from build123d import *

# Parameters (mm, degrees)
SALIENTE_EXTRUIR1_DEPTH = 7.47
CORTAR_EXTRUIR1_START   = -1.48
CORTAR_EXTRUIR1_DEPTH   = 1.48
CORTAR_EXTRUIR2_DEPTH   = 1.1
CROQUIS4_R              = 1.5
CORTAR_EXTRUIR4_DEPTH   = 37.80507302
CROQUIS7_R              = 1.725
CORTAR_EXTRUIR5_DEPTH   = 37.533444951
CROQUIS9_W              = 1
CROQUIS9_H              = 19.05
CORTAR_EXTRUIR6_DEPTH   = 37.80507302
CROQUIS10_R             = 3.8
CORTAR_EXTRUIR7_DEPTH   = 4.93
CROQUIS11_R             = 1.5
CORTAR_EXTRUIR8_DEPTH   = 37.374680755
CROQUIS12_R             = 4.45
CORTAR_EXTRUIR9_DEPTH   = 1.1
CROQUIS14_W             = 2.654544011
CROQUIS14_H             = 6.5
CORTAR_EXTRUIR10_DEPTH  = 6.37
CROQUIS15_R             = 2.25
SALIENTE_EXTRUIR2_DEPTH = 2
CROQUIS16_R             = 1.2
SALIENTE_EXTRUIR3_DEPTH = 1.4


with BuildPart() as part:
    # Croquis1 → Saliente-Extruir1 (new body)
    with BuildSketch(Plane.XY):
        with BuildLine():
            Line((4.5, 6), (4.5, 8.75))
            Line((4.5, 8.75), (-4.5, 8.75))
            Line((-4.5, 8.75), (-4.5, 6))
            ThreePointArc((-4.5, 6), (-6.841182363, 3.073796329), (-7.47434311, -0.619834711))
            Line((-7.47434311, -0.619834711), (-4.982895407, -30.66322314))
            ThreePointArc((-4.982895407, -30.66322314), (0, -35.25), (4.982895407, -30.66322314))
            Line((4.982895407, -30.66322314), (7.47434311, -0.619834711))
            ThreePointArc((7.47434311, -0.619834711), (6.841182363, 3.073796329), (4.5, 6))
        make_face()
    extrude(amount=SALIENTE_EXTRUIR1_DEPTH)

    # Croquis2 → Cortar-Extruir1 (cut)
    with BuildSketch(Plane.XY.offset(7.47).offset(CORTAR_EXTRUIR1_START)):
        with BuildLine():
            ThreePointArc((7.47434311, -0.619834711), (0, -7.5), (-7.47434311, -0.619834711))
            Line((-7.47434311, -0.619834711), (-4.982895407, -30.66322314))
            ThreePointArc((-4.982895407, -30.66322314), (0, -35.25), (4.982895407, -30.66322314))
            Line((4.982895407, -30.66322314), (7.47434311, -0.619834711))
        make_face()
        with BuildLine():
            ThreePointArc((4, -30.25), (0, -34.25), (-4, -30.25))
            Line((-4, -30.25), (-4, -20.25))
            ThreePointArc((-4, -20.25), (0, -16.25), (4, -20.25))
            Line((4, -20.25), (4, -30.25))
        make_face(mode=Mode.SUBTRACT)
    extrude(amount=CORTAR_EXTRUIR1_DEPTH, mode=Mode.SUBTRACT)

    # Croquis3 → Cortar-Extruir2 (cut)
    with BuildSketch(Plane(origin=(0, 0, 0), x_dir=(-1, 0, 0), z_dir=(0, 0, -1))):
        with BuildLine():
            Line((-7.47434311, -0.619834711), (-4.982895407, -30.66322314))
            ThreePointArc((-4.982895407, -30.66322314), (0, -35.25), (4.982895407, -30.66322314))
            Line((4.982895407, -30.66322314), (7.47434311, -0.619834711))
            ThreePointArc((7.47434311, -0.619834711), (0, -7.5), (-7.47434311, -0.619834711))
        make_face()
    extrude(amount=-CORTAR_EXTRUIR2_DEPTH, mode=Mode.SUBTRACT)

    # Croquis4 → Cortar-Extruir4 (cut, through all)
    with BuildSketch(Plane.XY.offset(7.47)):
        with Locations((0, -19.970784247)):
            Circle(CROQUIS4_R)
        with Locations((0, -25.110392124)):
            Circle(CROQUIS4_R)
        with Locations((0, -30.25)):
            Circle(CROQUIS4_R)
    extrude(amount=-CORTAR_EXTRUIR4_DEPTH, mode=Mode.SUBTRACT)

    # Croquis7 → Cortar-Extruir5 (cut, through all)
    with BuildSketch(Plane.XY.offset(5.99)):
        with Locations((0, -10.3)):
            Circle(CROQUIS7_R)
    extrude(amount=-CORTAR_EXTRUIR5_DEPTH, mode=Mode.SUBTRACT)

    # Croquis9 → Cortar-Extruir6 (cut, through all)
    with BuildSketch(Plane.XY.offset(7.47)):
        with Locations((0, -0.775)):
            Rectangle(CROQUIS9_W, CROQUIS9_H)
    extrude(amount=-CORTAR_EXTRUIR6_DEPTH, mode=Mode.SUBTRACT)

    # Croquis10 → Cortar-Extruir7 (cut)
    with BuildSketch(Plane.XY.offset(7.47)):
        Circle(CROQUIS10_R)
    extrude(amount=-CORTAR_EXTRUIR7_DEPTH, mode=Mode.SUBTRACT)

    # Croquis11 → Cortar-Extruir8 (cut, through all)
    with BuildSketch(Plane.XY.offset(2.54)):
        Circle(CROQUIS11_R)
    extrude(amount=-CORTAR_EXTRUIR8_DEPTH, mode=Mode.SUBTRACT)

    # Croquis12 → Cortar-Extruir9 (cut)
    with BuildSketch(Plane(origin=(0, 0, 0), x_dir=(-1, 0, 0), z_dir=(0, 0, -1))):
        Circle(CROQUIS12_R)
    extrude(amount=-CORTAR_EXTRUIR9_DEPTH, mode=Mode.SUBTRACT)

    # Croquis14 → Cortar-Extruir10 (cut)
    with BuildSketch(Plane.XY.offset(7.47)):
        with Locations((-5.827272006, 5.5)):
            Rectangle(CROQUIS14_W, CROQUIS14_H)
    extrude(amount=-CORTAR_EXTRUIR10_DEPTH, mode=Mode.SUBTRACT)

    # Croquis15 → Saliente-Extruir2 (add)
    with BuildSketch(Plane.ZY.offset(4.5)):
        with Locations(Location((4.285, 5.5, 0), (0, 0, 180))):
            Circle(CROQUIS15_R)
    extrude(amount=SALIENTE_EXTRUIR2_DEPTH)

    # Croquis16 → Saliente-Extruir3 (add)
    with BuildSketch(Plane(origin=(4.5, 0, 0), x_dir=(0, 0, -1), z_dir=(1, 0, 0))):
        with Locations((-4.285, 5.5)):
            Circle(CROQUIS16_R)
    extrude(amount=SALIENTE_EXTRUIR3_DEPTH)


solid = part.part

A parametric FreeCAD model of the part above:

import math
import FreeCAD as App
import Part
import Sketcher
from FreeCAD import Vector
Q = App.Units.Quantity

doc = App.newDocument("Part")
body = doc.addObject("PartDesign::Body", "Body")

# Sketch on XY plane
sketch1 = body.newObject("Sketcher::SketchObject", "Sketch")
sketch1.AttachmentSupport = (doc.getObject("XY_Plane"), [""])
sketch1.MapMode = "FlatFace"
sketch1.addGeometry([
    Part.LineSegment(Vector(4.5, 6, 0), Vector(4.5, 8.8, 0)),  # 0
    Part.LineSegment(Vector(4.5, 8.8, 0), Vector(-4.5, 8.8, 0)),  # 1
    Part.LineSegment(Vector(-4.5, 8.8, 0), Vector(-4.5, 6, 0)),  # 2
    Part.ArcOfCircle(Part.Circle(Vector(0, 0, 0), Vector(0, 0, 1), 7.5), math.radians(127), math.radians(185)),  # 3
    Part.LineSegment(Vector(-7.5, -0.6, 0), Vector(-5, -30.7, 0)),  # 4
    Part.ArcOfCircle(Part.Circle(Vector(0, -30.2, 0), Vector(0, 0, 1), 5), math.radians(-175), math.radians(-5)),  # 5
    Part.LineSegment(Vector(5, -30.7, 0), Vector(7.5, -0.6, 0)),  # 6
    Part.ArcOfCircle(Part.Circle(Vector(0, 0, 0), Vector(0, 0, 1), 7.5), math.radians(-5), math.radians(53)),  # 7
], False)
sketch1.addConstraint([
    Sketcher.Constraint("Coincident", 0, 2, 1, 1),
    Sketcher.Constraint("Coincident", 1, 2, 2, 1),
    Sketcher.Constraint("Coincident", 2, 2, 3, 1),
    Sketcher.Constraint("Tangent", 3, 2, 4, 1),
    Sketcher.Constraint("Tangent", 4, 2, 5, 1),
    Sketcher.Constraint("Tangent", 5, 2, 6, 1),
    Sketcher.Constraint("Tangent", 6, 2, 7, 1),
    Sketcher.Constraint("Coincident", 7, 2, 0, 1),
    Sketcher.Constraint("Vertical", 0),
    Sketcher.Constraint("Horizontal", 1),
    Sketcher.Constraint("Vertical", 2),
    Sketcher.Constraint("Coincident", 3, 3, -1, 1),
    Sketcher.Constraint("Coincident", 7, 3, -1, 1),
    Sketcher.Constraint("Equal", 3, 7),
    Sketcher.Constraint("PointOnObject", 5, 3, -2),
    Sketcher.Constraint("Horizontal", 2, 2, 7, 2),
    Sketcher.Constraint("Radius", 5, Q("5 mm")),
    Sketcher.Constraint("Radius", 3, Q("7.5 mm")),
    Sketcher.Constraint("DistanceX", 1, 2, 1, 1, Q("9 mm")),
    Sketcher.Constraint("DistanceY", 5, 3, 0, 2, Q("39 mm")),
    Sketcher.Constraint("DistanceY", 0, 1, 0, 2, Q("2.75 mm")),
])
pad1 = body.newObject("PartDesign::Pad", "Pad")
pad1.Profile = sketch1
pad1.Length = 7.47

# Sketch on XY plane
sketch2 = body.newObject("Sketcher::SketchObject", "Sketch001")
sketch2.AttachmentSupport = (doc.getObject("XY_Plane"), [""])
sketch2.MapMode = "FlatFace"
sketch2.AttachmentOffset = App.Placement(Vector(0, 0, 5.99), App.Rotation())
sketch2.addGeometry([
    Part.ArcOfCircle(Part.Circle(Vector(0, 0, 0), Vector(0, 0, 1), 7.5), math.radians(-175), math.radians(-5)),  # 0
    Part.LineSegment(Vector(-7.5, -0.6, 0), Vector(-5, -30.7, 0)),  # 1
    Part.ArcOfCircle(Part.Circle(Vector(0, -30.2, 0), Vector(0, 0, 1), 5), math.radians(-175), math.radians(-5)),  # 2
    Part.LineSegment(Vector(5, -30.7, 0), Vector(7.5, -0.6, 0)),  # 3
    Part.LineSegment(Vector(4, -20.2, 0), Vector(4, -30.2, 0)),  # 4
    Part.ArcOfCircle(Part.Circle(Vector(0, -30.2, 0), Vector(0, 0, 1), 4), math.radians(180), math.radians(360)),  # 5
    Part.LineSegment(Vector(-4, -30.2, 0), Vector(-4, -20.2, 0)),  # 6
    Part.ArcOfCircle(Part.Circle(Vector(0, -20.2, 0), Vector(0, 0, 1), 4), math.radians(0), math.radians(180)),  # 7
], False)
sketch2.addConstraint([
    Sketcher.Constraint("Tangent", 0, 1, 1, 1),
    Sketcher.Constraint("Tangent", 1, 2, 2, 1),
    Sketcher.Constraint("Tangent", 2, 2, 3, 1),
    Sketcher.Constraint("Tangent", 3, 2, 0, 2),
    Sketcher.Constraint("Tangent", 4, 2, 5, 2),
    Sketcher.Constraint("Tangent", 5, 1, 6, 1),
    Sketcher.Constraint("Tangent", 6, 2, 7, 2),
    Sketcher.Constraint("Tangent", 7, 1, 4, 1),
    Sketcher.Constraint("Vertical", 4),
    Sketcher.Constraint("Vertical", 6),
    Sketcher.Constraint("Coincident", 0, 3, -1, 1),
    Sketcher.Constraint("Coincident", 5, 3, 2, 3),
    Sketcher.Constraint("PointOnObject", 2, 3, -2),
    Sketcher.Constraint("Radius", 2, Q("5 mm")),
    Sketcher.Constraint("Radius", 5, Q("4 mm")),
    Sketcher.Constraint("Radius", 0, Q("7.5 mm")),
    Sketcher.Constraint("DistanceY", 4, 2, 4, 1, Q("10 mm")),
    Sketcher.Constraint("DistanceY", 2, 3, -1, 1, Q("30.25 mm")),
])
pocket1 = body.newObject("PartDesign::Pocket", "Pocket")
pocket1.Profile = sketch2
pocket1.Length = 1.48
pocket1.Reversed = True

# Sketch on XY plane
sketch3 = body.newObject("Sketcher::SketchObject", "Sketch002")
sketch3.AttachmentSupport = (doc.getObject("XY_Plane"), [""])
sketch3.MapMode = "FlatFace"
sketch3.addGeometry([
    Part.LineSegment(Vector(7, -1, 0), Vector(5, -31, 0)),
    Part.ArcOfCircle(Part.Circle(Vector(0, -30, 0), Vector(0, 0, 1), 5), math.radians(-175), math.radians(-5)),
    Part.LineSegment(Vector(-5, -31, 0), Vector(-7, -1, 0)),
    Part.ArcOfCircle(Part.Circle(Vector(0, 0, 0), Vector(0, 0, 1), 8), math.radians(-175), math.radians(-5)),
], False)
sketch3.addConstraint([
    Sketcher.Constraint("Tangent", 0, 2, 1, 2),
    Sketcher.Constraint("Tangent", 1, 1, 2, 1),
    Sketcher.Constraint("Tangent", 2, 2, 3, 1),
    Sketcher.Constraint("Tangent", 3, 2, 0, 1),
    Sketcher.Constraint("Coincident", 3, 3, -1, 1),
    Sketcher.Constraint("PointOnObject", 1, 3, -2),
    Sketcher.Constraint("Radius", 1, Q("5 mm")),
    Sketcher.Constraint("Radius", 3, Q("7.5 mm")),
    Sketcher.Constraint("DistanceY", 1, 3, -1, 1, Q("30.25 mm")),
])
pocket2 = body.newObject("PartDesign::Pocket", "Pocket001")
pocket2.Profile = sketch3
pocket2.Length = 1.1
pocket2.Reversed = True

# Sketch on XY plane
sketch4 = body.newObject("Sketcher::SketchObject", "Sketch003")
sketch4.AttachmentSupport = (doc.getObject("XY_Plane"), [""])
sketch4.MapMode = "FlatFace"
sketch4.AttachmentOffset = App.Placement(Vector(0, 0, 7.47), App.Rotation())
sketch4.addGeometry([
    Part.Circle(Vector(0, -20, 0), Vector(0, 0, 1), 1.5),
    Part.Circle(Vector(0, -25.1, 0), Vector(0, 0, 1), 1.5),
    Part.Circle(Vector(0, -30.2, 0), Vector(0, 0, 1), 1.5),
], False)
sketch4.addConstraint([
    Sketcher.Constraint("Equal", 0, 1),
    Sketcher.Constraint("Equal", 1, 2),
    Sketcher.Constraint("PointOnObject", 0, 3, -2),
    Sketcher.Constraint("PointOnObject", 1, 3, -2),
    Sketcher.Constraint("PointOnObject", 2, 3, -2),
    Sketcher.Constraint("Diameter", 0, Q("3 mm")),
    Sketcher.Constraint("DistanceY", 2, 3, -1, 1, Q("30.25 mm")),
    Sketcher.Constraint("DistanceY", 0, 3, -1, 1, Q("19.970784 mm")),
    Sketcher.Constraint("DistanceY", 1, 3, -1, 1, Q("25.110392 mm")),
])
pocket3 = body.newObject("PartDesign::Pocket", "Pocket002")
pocket3.Profile = sketch4
pocket3.Type = "ThroughAll"

# Sketch on XY plane
sketch5 = body.newObject("Sketcher::SketchObject", "Sketch004")
sketch5.AttachmentSupport = (doc.getObject("XY_Plane"), [""])
sketch5.MapMode = "FlatFace"
sketch5.AttachmentOffset = App.Placement(Vector(0, 0, 5.99), App.Rotation())
sketch5.addGeometry(Part.Circle(Vector(0, -10.3, 0), Vector(0, 0, 1), 1.7), False)
sketch5.addConstraint([
    Sketcher.Constraint("PointOnObject", 0, 3, -2),
    Sketcher.Constraint("Diameter", 0, Q("3.45 mm")),
    Sketcher.Constraint("DistanceY", 0, 3, -1, 1, Q("10.3 mm")),
])
pocket4 = body.newObject("PartDesign::Pocket", "Pocket003")
pocket4.Profile = sketch5
pocket4.Type = "ThroughAll"

# Sketch on XY plane
sketch6 = body.newObject("Sketcher::SketchObject", "Sketch005")
sketch6.AttachmentSupport = (doc.getObject("XY_Plane"), [""])
sketch6.MapMode = "FlatFace"
sketch6.AttachmentOffset = App.Placement(Vector(0, 0, 7.47), App.Rotation())
sketch6.addGeometry([
    Part.LineSegment(Vector(-0.5, 8.8, 0), Vector(-0.5, -10.3, 0)),
    Part.LineSegment(Vector(-0.5, -10.3, 0), Vector(0.5, -10.3, 0)),
    Part.LineSegment(Vector(0.5, -10.3, 0), Vector(0.5, 8.8, 0)),
    Part.LineSegment(Vector(0.5, 8.8, 0), Vector(-0.5, 8.8, 0)),
], False)
sketch6.addConstraint([
    Sketcher.Constraint("Coincident", 0, 2, 1, 1),
    Sketcher.Constraint("Coincident", 1, 2, 2, 1),
    Sketcher.Constraint("Coincident", 2, 2, 3, 1),
    Sketcher.Constraint("Coincident", 3, 2, 0, 1),
    Sketcher.Constraint("Vertical", 0),
    Sketcher.Constraint("Horizontal", 1),
    Sketcher.Constraint("Vertical", 2),
    Sketcher.Constraint("Horizontal", 3),
    Sketcher.Constraint("DistanceX", 1, 1, 1, 2, Q("1 mm")),
    Sketcher.Constraint("DistanceY", 0, 2, 0, 1, Q("19.05 mm")),
    Sketcher.Constraint("DistanceX", 0, 2, -1, 1, Q("0.5 mm")),
    Sketcher.Constraint("DistanceY", 0, 2, -1, 1, Q("10.3 mm")),
])
pocket5 = body.newObject("PartDesign::Pocket", "Pocket004")
pocket5.Profile = sketch6
pocket5.Type = "ThroughAll"

# Sketch on XY plane
sketch7 = body.newObject("Sketcher::SketchObject", "Sketch006")
sketch7.AttachmentSupport = (doc.getObject("XY_Plane"), [""])
sketch7.MapMode = "FlatFace"
sketch7.AttachmentOffset = App.Placement(Vector(0, 0, 7.47), App.Rotation())
sketch7.addGeometry(Part.Circle(Vector(0, 0, 0), Vector(0, 0, 1), 3.8), False)
sketch7.addConstraint([
    Sketcher.Constraint("Coincident", 0, 3, -1, 1),
    Sketcher.Constraint("Diameter", 0, Q("7.6 mm")),
])
pocket6 = body.newObject("PartDesign::Pocket", "Pocket005")
pocket6.Profile = sketch7
pocket6.Length = 4.93

# Sketch on XY plane
sketch8 = body.newObject("Sketcher::SketchObject", "Sketch007")
sketch8.AttachmentSupport = (doc.getObject("XY_Plane"), [""])
sketch8.MapMode = "FlatFace"
sketch8.AttachmentOffset = App.Placement(Vector(0, 0, 2.54), App.Rotation())
sketch8.addGeometry(Part.Circle(Vector(0, 0, 0), Vector(0, 0, 1), 1.5), False)
sketch8.addConstraint([
    Sketcher.Constraint("Coincident", 0, 3, -1, 1),
    Sketcher.Constraint("Diameter", 0, Q("3 mm")),
])
pocket7 = body.newObject("PartDesign::Pocket", "Pocket006")
pocket7.Profile = sketch8
pocket7.Type = "ThroughAll"

# Sketch on XY plane
sketch9 = body.newObject("Sketcher::SketchObject", "Sketch008")
sketch9.AttachmentSupport = (doc.getObject("XY_Plane"), [""])
sketch9.MapMode = "FlatFace"
sketch9.addGeometry(Part.Circle(Vector(0, 0, 0), Vector(0, 0, 1), 4.5), False)
sketch9.addConstraint([
    Sketcher.Constraint("Coincident", 0, 3, -1, 1),
    Sketcher.Constraint("Diameter", 0, Q("8.9 mm")),
])
pocket8 = body.newObject("PartDesign::Pocket", "Pocket007")
pocket8.Profile = sketch9
pocket8.Length = 1.1
pocket8.Reversed = True

# Sketch on XY plane
sketch10 = body.newObject("Sketcher::SketchObject", "Sketch009")
sketch10.AttachmentSupport = (doc.getObject("XY_Plane"), [""])
sketch10.MapMode = "FlatFace"
sketch10.AttachmentOffset = App.Placement(Vector(0, 0, 7.47), App.Rotation())
sketch10.addGeometry([
    Part.LineSegment(Vector(-7.2, 8.8, 0), Vector(-7.2, 2.2, 0)),
    Part.LineSegment(Vector(-7.2, 2.2, 0), Vector(-4.5, 2.2, 0)),
    Part.LineSegment(Vector(-4.5, 2.2, 0), Vector(-4.5, 8.8, 0)),
    Part.LineSegment(Vector(-4.5, 8.8, 0), Vector(-7.2, 8.8, 0)),
], False)
sketch10.addConstraint([
    Sketcher.Constraint("Coincident", 0, 2, 1, 1),
    Sketcher.Constraint("Coincident", 1, 2, 2, 1),
    Sketcher.Constraint("Coincident", 2, 2, 3, 1),
    Sketcher.Constraint("Coincident", 3, 2, 0, 1),
    Sketcher.Constraint("Vertical", 0),
    Sketcher.Constraint("Horizontal", 1),
    Sketcher.Constraint("Vertical", 2),
    Sketcher.Constraint("Horizontal", 3),
    Sketcher.Constraint("DistanceY", 0, 2, 0, 1, Q("6.5 mm")),
    Sketcher.Constraint("DistanceX", 1, 2, -1, 1, Q("4.5 mm")),
    Sketcher.Constraint("DistanceY", -1, 1, 0, 2, Q("2.25 mm")),
    Sketcher.Constraint("DistanceX", 1, 1, 1, 2, Q("2.654544 mm")),
])
pocket9 = body.newObject("PartDesign::Pocket", "Pocket008")
pocket9.Profile = sketch10
pocket9.Length = 6.37

# Sketch on YZ plane
sketch11 = body.newObject("Sketcher::SketchObject", "Sketch010")
sketch11.AttachmentSupport = (doc.getObject("YZ_Plane"), [""])
sketch11.MapMode = "FlatFace"
sketch11.AttachmentOffset = App.Placement(Vector(0, 0, -4.5), App.Rotation())
sketch11.addGeometry(Part.Circle(Vector(5.5, 4.3, 0), Vector(0, 0, 1), 2.2), False)
sketch11.addConstraint([
    Sketcher.Constraint("Diameter", 0, Q("4.5 mm")),
    Sketcher.Constraint("DistanceX", -1, 1, 0, 3, Q("5.5 mm")),
    Sketcher.Constraint("DistanceY", -1, 1, 0, 3, Q("4.285 mm")),
])
pad2 = body.newObject("PartDesign::Pad", "Pad001")
pad2.Profile = sketch11
pad2.Length = 2
pad2.Reversed = True

# Sketch on YZ plane
sketch12 = body.newObject("Sketcher::SketchObject", "Sketch011")
sketch12.AttachmentSupport = (doc.getObject("YZ_Plane"), [""])
sketch12.MapMode = "FlatFace"
sketch12.AttachmentOffset = App.Placement(Vector(0, 0, 4.5), App.Rotation())
sketch12.addGeometry(Part.Circle(Vector(5.5, 4.3, 0), Vector(0, 0, 1), 1.2), False)
sketch12.addConstraint([
    Sketcher.Constraint("Diameter", 0, Q("2.4 mm")),
    Sketcher.Constraint("DistanceX", -1, 1, 0, 3, Q("5.5 mm")),
    Sketcher.Constraint("DistanceY", -1, 1, 0, 3, Q("4.285 mm")),
])
pad3 = body.newObject("PartDesign::Pad", "Pad002")
pad3.Profile = sketch12
pad3.Length = 1.4

doc.recompute()
